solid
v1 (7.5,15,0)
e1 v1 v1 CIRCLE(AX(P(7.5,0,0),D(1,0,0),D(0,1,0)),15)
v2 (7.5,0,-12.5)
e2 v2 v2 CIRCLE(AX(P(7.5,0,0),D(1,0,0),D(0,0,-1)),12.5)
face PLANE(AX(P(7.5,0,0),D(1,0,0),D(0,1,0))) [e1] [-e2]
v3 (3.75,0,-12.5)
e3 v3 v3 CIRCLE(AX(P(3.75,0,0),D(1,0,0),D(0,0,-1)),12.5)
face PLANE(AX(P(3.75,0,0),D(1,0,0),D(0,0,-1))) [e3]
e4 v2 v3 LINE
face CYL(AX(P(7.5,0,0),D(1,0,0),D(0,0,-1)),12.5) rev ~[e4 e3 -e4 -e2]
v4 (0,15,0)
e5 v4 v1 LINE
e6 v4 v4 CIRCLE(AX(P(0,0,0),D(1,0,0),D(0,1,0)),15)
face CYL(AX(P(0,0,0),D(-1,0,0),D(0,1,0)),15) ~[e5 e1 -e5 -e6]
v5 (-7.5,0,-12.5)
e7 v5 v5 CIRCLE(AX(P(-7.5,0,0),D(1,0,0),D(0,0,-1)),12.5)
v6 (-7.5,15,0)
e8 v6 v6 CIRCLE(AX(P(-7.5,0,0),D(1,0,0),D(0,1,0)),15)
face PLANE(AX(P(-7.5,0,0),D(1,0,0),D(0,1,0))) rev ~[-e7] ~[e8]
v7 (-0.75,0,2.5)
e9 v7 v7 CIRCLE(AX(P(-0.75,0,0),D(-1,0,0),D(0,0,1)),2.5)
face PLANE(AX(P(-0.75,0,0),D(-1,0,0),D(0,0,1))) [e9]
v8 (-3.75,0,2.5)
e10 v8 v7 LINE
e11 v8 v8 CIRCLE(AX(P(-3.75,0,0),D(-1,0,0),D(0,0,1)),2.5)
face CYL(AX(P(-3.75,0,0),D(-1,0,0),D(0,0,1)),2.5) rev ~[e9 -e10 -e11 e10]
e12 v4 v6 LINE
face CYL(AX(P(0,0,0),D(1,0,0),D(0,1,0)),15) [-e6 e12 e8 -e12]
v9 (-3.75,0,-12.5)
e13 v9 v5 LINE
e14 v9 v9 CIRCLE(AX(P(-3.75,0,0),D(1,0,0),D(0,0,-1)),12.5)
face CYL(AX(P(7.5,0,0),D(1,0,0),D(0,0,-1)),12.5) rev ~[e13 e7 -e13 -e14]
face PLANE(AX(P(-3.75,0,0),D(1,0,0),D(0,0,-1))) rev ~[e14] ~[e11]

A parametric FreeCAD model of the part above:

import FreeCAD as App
import Part
import Sketcher

doc = App.newDocument("Part")
params = doc.addObject("Spreadsheet::Sheet", "Params")
for row, (alias, value) in enumerate([
    ("sketch1_diameter", "30 mm"),
    ("pad1_length", "15 mm"),
    ("sketch2_diameter", "25 mm"),
    ("sketch3_diameter", "27.5 mm"),
    ("pad2_length", "7.5 mm"),
    ("sketch4_diameter", "5 mm"),
    ("pocket2_length", "3 mm"),
], start=1):
    params.set(f"A{row}", alias)
    params.set(f"B{row}", "=" + value)
    params.setAlias(f"B{row}", alias)

body = doc.addObject("PartDesign::Body", "Body")

sketch1 = body.newObject("Sketcher::SketchObject", "Sketch")
sketch1.AttachmentSupport = (doc.getObject("YZ_Plane"), [""])
sketch1.MapMode = "FlatFace"
sketch1.addGeometry(Part.Circle(App.Vector(0, 0, 0), App.Vector(0, 0, 1), 15), False)
sketch1.addConstraint([
    Sketcher.Constraint("Coincident", 0, 3, -1, 1),
    Sketcher.Constraint("Diameter", 0, 30.0),
])
sketch1.setExpression("Constraints[1]", "Params.sketch1_diameter")
pad1 = body.newObject("PartDesign::Pad", "Pad")
pad1.Profile = sketch1
pad1.setExpression("Length", "Params.pad1_length")
pad1.Midplane = True

sketch2 = body.newObject("Sketcher::SketchObject", "Sketch001")
sketch2.AttachmentSupport = (doc.getObject("YZ_Plane"), [""])
sketch2.MapMode = "FlatFace"
sketch2.AttachmentOffset = App.Placement(App.Vector(0, 0, 7.5), App.Rotation())
sketch2.addGeometry(Part.Circle(App.Vector(0, 0, 0), App.Vector(0, 0, 1), 12.5), False)
sketch2.addConstraint([
    Sketcher.Constraint("Coincident", 0, 3, -1, 1),
    Sketcher.Constraint("Diameter", 0, 25.0),
])
sketch2.setExpression("Constraints[1]", "Params.sketch2_diameter")
pocket1 = body.newObject("PartDesign::Pocket", "Pocket")
pocket1.Profile = sketch2
pocket1.Type = "ThroughAll"
pocket1.Midplane = True

sketch3 = body.newObject("Sketcher::SketchObject", "Sketch002")
sketch3.AttachmentSupport = (doc.getObject("YZ_Plane"), [""])
sketch3.MapMode = "FlatFace"
sketch3.addGeometry(Part.Circle(App.Vector(0, 0, 0), App.Vector(0, 0, 1), 13.75), False)
sketch3.addConstraint([
    Sketcher.Constraint("Coincident", 0, 3, -1, 1),
    Sketcher.Constraint("Diameter", 0, 27.5),
])
sketch3.setExpression("Constraints[1]", "Params.sketch3_diameter")
pad2 = body.newObject("PartDesign::Pad", "Pad001")
pad2.Profile = sketch3
pad2.setExpression("Length", "Params.pad2_length")
pad2.Midplane = True

sketch4 = body.newObject("Sketcher::SketchObject", "Sketch003")
sketch4.AttachmentSupport = (doc.getObject("YZ_Plane"), [""])
sketch4.MapMode = "FlatFace"
sketch4.AttachmentOffset = App.Placement(App.Vector(0, 0, -3.75), App.Rotation())
sketch4.addGeometry(Part.Circle(App.Vector(0, 0, 0), App.Vector(0, 0, 1), 2.5), False)
sketch4.addConstraint([
    Sketcher.Constraint("Coincident", 0, 3, -1, 1),
    Sketcher.Constraint("Diameter", 0, 5.0),
])
sketch4.setExpression("Constraints[1]", "Params.sketch4_diameter")
pocket2 = body.newObject("PartDesign::Pocket", "Pocket001")
pocket2.Profile = sketch4
pocket2.setExpression("Length", "Params.pocket2_length")
pocket2.Reversed = True

doc.recompute()
